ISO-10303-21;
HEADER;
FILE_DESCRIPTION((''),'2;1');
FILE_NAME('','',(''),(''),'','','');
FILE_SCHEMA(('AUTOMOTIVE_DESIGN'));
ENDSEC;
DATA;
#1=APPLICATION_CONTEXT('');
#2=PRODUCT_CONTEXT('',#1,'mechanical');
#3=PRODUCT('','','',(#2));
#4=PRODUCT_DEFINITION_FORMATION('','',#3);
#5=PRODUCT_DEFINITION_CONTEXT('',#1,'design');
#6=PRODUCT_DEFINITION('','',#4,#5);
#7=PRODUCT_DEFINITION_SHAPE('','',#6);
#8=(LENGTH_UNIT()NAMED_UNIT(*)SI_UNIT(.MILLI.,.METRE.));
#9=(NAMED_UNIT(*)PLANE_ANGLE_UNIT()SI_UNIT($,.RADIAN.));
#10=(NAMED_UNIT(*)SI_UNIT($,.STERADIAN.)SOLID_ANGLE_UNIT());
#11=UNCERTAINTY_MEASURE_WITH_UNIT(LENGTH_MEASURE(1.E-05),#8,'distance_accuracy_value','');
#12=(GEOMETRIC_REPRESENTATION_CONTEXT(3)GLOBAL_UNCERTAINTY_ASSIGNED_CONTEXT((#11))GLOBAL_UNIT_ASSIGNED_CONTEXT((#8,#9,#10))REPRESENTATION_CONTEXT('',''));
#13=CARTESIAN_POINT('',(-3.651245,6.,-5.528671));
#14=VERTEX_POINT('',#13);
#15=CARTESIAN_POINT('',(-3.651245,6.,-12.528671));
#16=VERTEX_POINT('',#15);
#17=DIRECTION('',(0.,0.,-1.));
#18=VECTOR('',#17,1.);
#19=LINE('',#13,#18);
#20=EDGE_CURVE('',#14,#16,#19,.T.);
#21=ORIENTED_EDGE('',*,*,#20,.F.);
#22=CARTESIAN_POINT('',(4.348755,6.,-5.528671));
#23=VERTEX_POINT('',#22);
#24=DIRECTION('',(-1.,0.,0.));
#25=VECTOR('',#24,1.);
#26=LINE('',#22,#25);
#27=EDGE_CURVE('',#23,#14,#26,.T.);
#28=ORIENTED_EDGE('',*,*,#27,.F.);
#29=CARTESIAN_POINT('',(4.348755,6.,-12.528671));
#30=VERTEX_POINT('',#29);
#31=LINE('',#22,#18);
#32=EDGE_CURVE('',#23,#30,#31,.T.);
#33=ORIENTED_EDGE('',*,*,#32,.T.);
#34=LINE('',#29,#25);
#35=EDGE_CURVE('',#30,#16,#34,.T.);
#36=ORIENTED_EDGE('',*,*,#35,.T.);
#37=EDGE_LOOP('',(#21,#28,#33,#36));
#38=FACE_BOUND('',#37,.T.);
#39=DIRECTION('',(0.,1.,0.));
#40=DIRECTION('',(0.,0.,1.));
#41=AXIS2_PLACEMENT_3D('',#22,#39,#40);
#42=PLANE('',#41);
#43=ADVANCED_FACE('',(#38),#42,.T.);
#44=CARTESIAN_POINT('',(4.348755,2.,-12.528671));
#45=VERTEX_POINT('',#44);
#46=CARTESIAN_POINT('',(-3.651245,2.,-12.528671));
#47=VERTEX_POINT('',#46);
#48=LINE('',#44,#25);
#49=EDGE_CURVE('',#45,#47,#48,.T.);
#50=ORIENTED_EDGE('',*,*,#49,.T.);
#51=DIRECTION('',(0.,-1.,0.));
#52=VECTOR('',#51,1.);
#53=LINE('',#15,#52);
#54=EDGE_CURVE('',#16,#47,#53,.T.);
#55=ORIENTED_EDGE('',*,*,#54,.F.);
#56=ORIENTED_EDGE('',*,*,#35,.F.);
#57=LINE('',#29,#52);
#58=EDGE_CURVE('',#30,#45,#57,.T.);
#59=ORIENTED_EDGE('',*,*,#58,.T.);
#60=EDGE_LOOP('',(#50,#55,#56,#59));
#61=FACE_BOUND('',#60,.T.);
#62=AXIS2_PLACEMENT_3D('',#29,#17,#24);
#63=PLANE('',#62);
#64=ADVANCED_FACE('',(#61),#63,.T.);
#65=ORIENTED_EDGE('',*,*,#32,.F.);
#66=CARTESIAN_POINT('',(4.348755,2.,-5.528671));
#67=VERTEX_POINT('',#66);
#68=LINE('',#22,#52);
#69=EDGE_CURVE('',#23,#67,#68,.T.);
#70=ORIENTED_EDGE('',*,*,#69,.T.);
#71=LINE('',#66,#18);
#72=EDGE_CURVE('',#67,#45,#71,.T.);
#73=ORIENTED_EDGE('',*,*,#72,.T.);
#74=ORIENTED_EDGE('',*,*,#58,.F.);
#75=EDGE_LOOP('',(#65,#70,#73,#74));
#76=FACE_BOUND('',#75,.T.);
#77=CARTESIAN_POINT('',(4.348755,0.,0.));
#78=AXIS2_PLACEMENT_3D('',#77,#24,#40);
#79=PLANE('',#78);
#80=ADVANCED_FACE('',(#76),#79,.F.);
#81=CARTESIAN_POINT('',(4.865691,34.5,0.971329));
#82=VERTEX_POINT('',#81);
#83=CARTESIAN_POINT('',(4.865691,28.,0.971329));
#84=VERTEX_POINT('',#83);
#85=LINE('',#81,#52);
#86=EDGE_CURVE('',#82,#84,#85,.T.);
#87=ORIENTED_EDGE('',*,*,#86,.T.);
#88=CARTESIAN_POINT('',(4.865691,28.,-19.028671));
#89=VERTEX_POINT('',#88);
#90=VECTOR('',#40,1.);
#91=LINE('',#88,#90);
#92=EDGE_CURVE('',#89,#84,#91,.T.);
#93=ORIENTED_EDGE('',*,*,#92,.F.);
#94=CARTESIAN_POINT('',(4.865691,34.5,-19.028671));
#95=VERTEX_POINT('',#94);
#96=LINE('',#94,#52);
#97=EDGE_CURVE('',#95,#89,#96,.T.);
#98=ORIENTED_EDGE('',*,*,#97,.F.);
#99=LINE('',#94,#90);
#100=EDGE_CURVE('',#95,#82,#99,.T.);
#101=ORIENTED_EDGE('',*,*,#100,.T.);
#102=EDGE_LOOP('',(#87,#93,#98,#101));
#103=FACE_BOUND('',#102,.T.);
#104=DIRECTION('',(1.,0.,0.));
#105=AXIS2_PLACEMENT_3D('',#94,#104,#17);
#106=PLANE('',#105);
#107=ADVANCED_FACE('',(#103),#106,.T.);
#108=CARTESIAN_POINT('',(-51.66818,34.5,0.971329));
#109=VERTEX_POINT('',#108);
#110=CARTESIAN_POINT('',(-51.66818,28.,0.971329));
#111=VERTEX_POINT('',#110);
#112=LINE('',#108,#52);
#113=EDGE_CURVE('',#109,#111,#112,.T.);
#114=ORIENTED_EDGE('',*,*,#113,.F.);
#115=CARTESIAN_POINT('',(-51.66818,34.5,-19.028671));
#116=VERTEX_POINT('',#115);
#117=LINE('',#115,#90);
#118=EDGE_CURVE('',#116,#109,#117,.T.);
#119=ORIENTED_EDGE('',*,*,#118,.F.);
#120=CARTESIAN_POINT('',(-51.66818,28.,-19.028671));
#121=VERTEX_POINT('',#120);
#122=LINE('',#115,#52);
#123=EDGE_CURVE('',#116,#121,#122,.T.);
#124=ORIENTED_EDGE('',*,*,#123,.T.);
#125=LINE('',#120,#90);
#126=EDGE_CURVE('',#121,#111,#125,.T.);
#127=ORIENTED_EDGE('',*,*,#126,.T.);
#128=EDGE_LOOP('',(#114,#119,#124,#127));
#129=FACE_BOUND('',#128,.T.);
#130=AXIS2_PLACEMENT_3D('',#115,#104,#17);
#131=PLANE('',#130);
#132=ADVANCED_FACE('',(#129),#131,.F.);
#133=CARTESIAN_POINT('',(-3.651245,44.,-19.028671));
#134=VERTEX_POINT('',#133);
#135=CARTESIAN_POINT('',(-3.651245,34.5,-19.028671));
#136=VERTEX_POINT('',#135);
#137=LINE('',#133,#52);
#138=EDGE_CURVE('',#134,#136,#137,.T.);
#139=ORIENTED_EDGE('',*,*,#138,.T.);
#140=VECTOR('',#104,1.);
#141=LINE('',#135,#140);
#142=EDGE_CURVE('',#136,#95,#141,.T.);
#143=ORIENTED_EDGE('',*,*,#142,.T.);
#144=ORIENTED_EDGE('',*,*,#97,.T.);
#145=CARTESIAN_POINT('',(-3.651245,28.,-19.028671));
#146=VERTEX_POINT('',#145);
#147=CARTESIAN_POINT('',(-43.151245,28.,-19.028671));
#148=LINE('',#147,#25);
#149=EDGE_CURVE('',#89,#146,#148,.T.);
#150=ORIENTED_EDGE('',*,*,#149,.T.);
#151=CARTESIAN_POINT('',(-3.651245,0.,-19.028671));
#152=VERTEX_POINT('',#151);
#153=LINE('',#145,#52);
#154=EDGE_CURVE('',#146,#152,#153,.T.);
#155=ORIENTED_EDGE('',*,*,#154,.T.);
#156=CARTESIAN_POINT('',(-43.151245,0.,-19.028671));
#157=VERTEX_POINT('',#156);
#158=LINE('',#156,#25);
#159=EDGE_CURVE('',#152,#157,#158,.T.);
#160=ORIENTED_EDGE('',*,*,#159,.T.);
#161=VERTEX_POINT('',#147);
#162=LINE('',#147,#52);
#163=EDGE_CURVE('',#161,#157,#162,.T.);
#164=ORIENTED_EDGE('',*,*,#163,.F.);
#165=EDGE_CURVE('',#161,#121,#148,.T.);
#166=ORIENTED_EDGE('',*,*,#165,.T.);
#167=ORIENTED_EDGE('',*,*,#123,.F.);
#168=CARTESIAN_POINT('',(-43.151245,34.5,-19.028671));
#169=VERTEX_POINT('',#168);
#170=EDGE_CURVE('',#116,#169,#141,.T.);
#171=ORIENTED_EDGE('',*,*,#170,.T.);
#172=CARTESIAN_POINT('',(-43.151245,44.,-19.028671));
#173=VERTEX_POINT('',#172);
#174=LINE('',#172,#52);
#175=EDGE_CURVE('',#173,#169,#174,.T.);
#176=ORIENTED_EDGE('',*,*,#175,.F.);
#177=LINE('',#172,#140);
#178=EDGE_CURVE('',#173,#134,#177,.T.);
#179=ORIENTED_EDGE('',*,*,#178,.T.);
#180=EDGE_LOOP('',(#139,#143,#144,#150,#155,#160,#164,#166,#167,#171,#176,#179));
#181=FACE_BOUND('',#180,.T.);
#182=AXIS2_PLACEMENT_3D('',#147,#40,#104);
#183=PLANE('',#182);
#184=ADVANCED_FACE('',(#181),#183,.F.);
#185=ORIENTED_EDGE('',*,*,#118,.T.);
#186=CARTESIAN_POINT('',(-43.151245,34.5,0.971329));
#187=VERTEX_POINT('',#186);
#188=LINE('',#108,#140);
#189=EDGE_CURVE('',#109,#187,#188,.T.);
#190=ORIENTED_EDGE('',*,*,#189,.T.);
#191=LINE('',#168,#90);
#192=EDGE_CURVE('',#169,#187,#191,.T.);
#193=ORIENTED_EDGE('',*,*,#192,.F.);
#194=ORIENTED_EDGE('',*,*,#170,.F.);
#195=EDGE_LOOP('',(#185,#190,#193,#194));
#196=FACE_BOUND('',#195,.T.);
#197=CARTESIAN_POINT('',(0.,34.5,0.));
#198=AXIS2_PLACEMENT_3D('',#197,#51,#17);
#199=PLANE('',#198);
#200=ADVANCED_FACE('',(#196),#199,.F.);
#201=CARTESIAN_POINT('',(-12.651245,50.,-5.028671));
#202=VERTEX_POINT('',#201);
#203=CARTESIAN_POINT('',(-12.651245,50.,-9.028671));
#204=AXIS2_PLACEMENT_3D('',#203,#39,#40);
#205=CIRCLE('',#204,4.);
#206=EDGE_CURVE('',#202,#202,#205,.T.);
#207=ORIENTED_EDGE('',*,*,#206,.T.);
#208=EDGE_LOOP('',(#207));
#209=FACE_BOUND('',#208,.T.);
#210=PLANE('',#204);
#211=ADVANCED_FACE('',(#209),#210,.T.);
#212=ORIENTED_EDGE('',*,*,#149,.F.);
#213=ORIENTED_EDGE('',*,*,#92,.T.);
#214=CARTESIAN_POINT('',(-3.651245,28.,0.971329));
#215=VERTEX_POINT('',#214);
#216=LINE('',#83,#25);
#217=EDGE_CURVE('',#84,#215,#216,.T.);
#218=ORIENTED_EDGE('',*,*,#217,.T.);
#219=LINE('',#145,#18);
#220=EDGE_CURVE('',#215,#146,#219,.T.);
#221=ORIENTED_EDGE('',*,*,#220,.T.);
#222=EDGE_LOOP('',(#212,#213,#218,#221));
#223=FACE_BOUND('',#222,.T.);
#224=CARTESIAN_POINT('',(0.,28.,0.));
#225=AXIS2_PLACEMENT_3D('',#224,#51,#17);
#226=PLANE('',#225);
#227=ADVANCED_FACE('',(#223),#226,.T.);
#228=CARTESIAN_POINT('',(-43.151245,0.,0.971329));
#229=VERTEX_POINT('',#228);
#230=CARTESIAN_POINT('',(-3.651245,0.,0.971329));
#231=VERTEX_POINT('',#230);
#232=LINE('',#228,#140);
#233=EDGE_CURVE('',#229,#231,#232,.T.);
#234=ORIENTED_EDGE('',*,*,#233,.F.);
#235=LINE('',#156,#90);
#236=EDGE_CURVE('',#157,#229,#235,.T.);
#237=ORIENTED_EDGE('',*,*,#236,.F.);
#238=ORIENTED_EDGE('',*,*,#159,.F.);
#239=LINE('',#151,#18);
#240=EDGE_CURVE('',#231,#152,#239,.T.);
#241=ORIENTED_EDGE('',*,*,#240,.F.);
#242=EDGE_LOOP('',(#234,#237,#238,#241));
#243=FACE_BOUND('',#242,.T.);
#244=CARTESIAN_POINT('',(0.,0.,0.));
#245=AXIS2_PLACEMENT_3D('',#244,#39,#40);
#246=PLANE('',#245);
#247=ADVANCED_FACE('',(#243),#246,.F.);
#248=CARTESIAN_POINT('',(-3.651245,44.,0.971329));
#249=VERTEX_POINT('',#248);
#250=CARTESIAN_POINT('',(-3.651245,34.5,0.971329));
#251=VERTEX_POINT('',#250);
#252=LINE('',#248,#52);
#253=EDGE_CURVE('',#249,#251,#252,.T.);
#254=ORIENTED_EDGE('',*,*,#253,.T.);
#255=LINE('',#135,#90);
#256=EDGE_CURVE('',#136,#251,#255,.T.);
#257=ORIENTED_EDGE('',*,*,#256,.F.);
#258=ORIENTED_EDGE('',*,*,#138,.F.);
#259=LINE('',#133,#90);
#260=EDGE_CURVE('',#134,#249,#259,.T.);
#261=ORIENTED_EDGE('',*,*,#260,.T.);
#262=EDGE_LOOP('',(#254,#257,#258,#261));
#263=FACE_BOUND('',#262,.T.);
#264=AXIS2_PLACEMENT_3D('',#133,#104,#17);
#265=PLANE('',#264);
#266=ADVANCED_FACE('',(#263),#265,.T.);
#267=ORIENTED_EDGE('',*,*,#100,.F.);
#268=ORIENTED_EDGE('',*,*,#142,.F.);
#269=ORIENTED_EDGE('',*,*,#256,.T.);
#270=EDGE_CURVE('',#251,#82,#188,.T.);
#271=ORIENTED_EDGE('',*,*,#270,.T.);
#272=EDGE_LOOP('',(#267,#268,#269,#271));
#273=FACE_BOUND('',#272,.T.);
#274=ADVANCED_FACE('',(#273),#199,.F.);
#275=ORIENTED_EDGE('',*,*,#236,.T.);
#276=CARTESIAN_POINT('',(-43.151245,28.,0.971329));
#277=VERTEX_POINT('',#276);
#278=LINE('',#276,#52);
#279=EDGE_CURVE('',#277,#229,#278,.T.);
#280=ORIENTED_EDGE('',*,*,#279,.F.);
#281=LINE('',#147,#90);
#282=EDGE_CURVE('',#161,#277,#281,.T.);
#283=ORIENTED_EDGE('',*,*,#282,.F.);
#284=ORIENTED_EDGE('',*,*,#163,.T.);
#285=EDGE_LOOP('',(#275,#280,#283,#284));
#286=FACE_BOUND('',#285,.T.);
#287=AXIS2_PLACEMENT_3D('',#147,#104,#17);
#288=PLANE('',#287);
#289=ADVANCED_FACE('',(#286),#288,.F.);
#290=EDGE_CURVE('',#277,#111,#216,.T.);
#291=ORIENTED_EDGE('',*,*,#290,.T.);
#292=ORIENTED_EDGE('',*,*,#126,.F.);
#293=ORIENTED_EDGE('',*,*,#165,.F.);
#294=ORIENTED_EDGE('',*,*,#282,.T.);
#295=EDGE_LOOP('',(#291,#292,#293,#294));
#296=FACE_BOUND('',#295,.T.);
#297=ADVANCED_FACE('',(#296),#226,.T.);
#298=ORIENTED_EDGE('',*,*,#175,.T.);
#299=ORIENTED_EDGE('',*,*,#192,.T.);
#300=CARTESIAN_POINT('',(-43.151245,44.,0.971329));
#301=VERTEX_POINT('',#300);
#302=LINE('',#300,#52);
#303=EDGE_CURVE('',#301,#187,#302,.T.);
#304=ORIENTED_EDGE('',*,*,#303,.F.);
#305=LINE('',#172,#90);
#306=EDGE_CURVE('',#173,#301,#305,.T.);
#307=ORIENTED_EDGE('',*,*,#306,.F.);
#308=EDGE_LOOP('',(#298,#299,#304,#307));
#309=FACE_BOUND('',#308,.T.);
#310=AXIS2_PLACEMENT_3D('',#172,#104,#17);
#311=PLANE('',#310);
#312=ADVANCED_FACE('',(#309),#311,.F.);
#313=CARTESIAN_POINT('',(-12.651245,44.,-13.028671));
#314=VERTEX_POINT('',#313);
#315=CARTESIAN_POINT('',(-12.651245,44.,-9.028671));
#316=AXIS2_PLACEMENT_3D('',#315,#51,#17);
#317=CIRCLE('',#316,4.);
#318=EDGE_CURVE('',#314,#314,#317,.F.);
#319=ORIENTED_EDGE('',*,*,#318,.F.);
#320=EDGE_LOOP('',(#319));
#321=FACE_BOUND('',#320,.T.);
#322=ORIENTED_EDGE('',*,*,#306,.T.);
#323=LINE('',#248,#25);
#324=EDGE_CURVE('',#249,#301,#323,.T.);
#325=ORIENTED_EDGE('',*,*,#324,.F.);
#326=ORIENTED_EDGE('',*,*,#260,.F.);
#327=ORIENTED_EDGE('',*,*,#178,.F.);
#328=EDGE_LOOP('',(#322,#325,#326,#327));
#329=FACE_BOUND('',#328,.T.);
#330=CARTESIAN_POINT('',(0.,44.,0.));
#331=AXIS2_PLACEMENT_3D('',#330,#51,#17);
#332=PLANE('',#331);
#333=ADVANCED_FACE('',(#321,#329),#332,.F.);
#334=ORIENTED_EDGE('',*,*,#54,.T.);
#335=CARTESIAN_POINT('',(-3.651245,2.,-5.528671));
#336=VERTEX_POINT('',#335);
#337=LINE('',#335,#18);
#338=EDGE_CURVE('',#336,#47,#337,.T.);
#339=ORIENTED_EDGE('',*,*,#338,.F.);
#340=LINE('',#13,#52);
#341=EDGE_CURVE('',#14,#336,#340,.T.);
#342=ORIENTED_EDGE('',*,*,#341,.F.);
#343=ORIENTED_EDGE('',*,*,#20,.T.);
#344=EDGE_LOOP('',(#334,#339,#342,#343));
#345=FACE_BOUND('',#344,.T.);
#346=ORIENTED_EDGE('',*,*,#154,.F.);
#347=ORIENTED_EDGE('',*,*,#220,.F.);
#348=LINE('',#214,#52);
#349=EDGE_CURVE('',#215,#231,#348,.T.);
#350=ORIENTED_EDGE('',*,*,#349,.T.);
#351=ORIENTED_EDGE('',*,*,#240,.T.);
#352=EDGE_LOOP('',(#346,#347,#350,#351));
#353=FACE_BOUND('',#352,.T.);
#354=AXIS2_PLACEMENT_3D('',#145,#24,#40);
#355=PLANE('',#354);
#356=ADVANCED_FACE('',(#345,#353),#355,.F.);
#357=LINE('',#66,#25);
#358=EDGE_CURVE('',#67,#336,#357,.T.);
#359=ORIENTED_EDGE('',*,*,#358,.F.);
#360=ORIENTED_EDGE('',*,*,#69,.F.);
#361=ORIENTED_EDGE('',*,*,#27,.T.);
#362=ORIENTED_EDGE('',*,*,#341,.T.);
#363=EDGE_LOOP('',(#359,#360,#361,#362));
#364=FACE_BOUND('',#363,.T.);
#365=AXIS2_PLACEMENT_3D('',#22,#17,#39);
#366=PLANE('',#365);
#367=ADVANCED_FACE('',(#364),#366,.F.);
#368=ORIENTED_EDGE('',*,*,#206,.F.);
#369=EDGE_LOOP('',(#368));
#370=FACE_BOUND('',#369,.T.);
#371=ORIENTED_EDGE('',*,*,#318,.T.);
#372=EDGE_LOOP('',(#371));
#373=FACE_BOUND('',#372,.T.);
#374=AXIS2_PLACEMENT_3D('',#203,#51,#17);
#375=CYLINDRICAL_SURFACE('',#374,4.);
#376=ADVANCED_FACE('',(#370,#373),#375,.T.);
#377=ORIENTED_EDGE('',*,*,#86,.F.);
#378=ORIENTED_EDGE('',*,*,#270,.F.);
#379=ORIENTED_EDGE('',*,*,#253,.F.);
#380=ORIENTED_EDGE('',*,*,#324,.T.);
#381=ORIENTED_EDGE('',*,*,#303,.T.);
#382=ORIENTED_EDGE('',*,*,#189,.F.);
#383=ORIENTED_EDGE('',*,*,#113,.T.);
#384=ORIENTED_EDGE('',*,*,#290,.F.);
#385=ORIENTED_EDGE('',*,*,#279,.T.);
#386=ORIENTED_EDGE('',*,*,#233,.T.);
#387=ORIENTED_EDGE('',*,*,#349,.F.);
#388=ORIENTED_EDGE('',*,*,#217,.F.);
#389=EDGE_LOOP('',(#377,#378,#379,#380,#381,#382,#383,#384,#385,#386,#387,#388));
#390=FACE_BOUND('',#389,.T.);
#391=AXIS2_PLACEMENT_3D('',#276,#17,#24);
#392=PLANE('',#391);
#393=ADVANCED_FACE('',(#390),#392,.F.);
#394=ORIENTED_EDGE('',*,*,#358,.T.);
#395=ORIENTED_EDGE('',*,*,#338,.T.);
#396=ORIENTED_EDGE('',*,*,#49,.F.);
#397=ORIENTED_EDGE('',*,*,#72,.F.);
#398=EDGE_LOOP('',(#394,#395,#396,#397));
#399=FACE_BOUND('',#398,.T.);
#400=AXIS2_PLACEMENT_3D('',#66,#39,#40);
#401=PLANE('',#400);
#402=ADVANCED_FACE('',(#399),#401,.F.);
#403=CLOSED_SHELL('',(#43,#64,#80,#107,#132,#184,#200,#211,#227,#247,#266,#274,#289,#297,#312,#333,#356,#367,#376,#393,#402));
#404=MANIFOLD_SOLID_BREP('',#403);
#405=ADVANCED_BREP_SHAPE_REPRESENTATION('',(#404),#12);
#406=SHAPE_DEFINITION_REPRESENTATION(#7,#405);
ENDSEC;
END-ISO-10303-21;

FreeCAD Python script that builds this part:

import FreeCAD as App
import Part
import Sketcher

V = App.Vector

doc = App.newDocument("Part")
body = doc.addObject("PartDesign::Body", "Body")

sketch1 = doc.addObject("Sketcher::SketchObject", "Sketch")
body.addObject(sketch1)
sketch1.AttachmentSupport = (doc.XZ_Plane, [""])
sketch1.MapMode = "FlatFace"
sketch1.addGeometry([
    Part.LineSegment(V(-43, -19, 0), V(-43, 1, 0)),
    Part.LineSegment(V(-43, 1, 0), V(-4, 1, 0)),
    Part.LineSegment(V(-4, 1, 0), V(-4, -19, 0)),
    Part.LineSegment(V(-4, -19, 0), V(-43, -19, 0)),
], False)
sketch1.addConstraint([
    Sketcher.Constraint("Coincident", 0, 2, 1, 1),
    Sketcher.Constraint("Coincident", 1, 2, 2, 1),
    Sketcher.Constraint("Coincident", 2, 2, 3, 1),
    Sketcher.Constraint("Coincident", 3, 2, 0, 1),
    Sketcher.Constraint("Vertical", 0),
    Sketcher.Constraint("Horizontal", 1),
    Sketcher.Constraint("Vertical", 2),
    Sketcher.Constraint("Horizontal", 3),
    Sketcher.Constraint("DistanceY", 0, 1, 0, 2, 20.0),
    Sketcher.Constraint("DistanceX", 1, 1, 1, 2, 39.5),
    Sketcher.Constraint("DistanceY", -1, 1, 0, 2, 0.971329),
    Sketcher.Constraint("DistanceX", 0, 2, -1, 1, 43.151245),
])
pad1 = doc.addObject("PartDesign::Pad", "Pad")
body.addObject(pad1)
pad1.Profile = sketch1
pad1.Length = 28
pad1.Reversed = True

sketch2 = doc.addObject("Sketcher::SketchObject", "Sketch001")
body.addObject(sketch2)
sketch2.AttachmentSupport = (doc.XZ_Plane, [""])
sketch2.MapMode = "FlatFace"
sketch2.AttachmentOffset = App.Placement(V(0, 0, -28), App.Rotation())
sketch2.addGeometry([
    Part.LineSegment(V(-52, -19, 0), V(-52, 1, 0)),
    Part.LineSegment(V(-52, 1, 0), V(5, 1, 0)),
    Part.LineSegment(V(5, 1, 0), V(5, -19, 0)),
    Part.LineSegment(V(5, -19, 0), V(-52, -19, 0)),
], False)
sketch2.addConstraint([
    Sketcher.Constraint("Coincident", 0, 2, 1, 1),
    Sketcher.Constraint("Coincident", 1, 2, 2, 1),
    Sketcher.Constraint("Coincident", 2, 2, 3, 1),
    Sketcher.Constraint("Coincident", 3, 2, 0, 1),
    Sketcher.Constraint("Vertical", 0),
    Sketcher.Constraint("Horizontal", 1),
    Sketcher.Constraint("Vertical", 2),
    Sketcher.Constraint("Horizontal", 3),
    Sketcher.Constraint("DistanceY", 0, 1, 0, 2, 20.0),
    Sketcher.Constraint("DistanceX", 1, 1, 1, 2, 56.533871),
    Sketcher.Constraint("DistanceX", 0, 2, -1, 1, 51.66818),
    Sketcher.Constraint("DistanceY", -1, 1, 0, 2, 0.971329),
])
pad2 = doc.addObject("PartDesign::Pad", "Pad001")
body.addObject(pad2)
pad2.Profile = sketch2
pad2.Length = 6.5
pad2.Reversed = True

sketch3 = doc.addObject("Sketcher::SketchObject", "Sketch002")
body.addObject(sketch3)
sketch3.AttachmentSupport = (doc.XZ_Plane, [""])
sketch3.MapMode = "FlatFace"
sketch3.AttachmentOffset = App.Placement(V(0, 0, -34.5), App.Rotation())
sketch3.addGeometry([
    Part.LineSegment(V(-43, -19, 0), V(-43, 1, 0)),
    Part.LineSegment(V(-43, 1, 0), V(-4, 1, 0)),
    Part.LineSegment(V(-4, 1, 0), V(-4, -19, 0)),
    Part.LineSegment(V(-4, -19, 0), V(-43, -19, 0)),
], False)
sketch3.addConstraint([
    Sketcher.Constraint("Coincident", 0, 2, 1, 1),
    Sketcher.Constraint("Coincident", 1, 2, 2, 1),
    Sketcher.Constraint("Coincident", 2, 2, 3, 1),
    Sketcher.Constraint("Coincident", 3, 2, 0, 1),
    Sketcher.Constraint("Vertical", 0),
    Sketcher.Constraint("Horizontal", 1),
    Sketcher.Constraint("Vertical", 2),
    Sketcher.Constraint("Horizontal", 3),
    Sketcher.Constraint("DistanceY", 0, 1, 0, 2, 20.0),
    Sketcher.Constraint("DistanceX", 1, 1, 1, 2, 39.5),
    Sketcher.Constraint("DistanceY", -1, 1, 0, 2, 0.971329),
    Sketcher.Constraint("DistanceX", 0, 2, -1, 1, 43.151245),
])
pad3 = doc.addObject("PartDesign::Pad", "Pad002")
body.addObject(pad3)
pad3.Profile = sketch3
pad3.Length = 9.5
pad3.Reversed = True

sketch4 = doc.addObject("Sketcher::SketchObject", "Sketch003")
body.addObject(sketch4)
sketch4.AttachmentSupport = (doc.XZ_Plane, [""])
sketch4.MapMode = "FlatFace"
sketch4.AttachmentOffset = App.Placement(V(0, 0, -44), App.Rotation())
sketch4.addGeometry(Part.Circle(V(-12.7, -9, 0), V(0, 0, 1), 4), False)
sketch4.addConstraint([
    Sketcher.Constraint("Diameter", 0, 8.0),
    Sketcher.Constraint("DistanceY", 0, 3, -1, 1, 9.028671),
    Sketcher.Constraint("DistanceX", 0, 3, -1, 1, 12.651245),
])
pad4 = doc.addObject("PartDesign::Pad", "Pad003")
body.addObject(pad4)
pad4.Profile = sketch4
pad4.Length = 6
pad4.Reversed = True

sketch5 = doc.addObject("Sketcher::SketchObject", "Sketch004")
body.addObject(sketch5)
sketch5.AttachmentSupport = (doc.YZ_Plane, [""])
sketch5.MapMode = "FlatFace"
sketch5.AttachmentOffset = App.Placement(V(0, 0, -3.651245), App.Rotation())
sketch5.addGeometry([
    Part.LineSegment(V(6, -5.5, 0), V(2, -5.5, 0)),
    Part.LineSegment(V(2, -5.5, 0), V(2, -12.5, 0)),
    Part.LineSegment(V(2, -12.5, 0), V(6, -12.5, 0)),
    Part.LineSegment(V(6, -12.5, 0), V(6, -5.5, 0)),
], False)
sketch5.addConstraint([
    Sketcher.Constraint("Coincident", 0, 2, 1, 1),
    Sketcher.Constraint("Coincident", 1, 2, 2, 1),
    Sketcher.Constraint("Coincident", 2, 2, 3, 1),
    Sketcher.Constraint("Coincident", 3, 2, 0, 1),
    Sketcher.Constraint("Horizontal", 0),
    Sketcher.Constraint("Vertical", 1),
    Sketcher.Constraint("Horizontal", 2),
    Sketcher.Constraint("Vertical", 3),
    Sketcher.Constraint("DistanceX", 0, 2, 0, 1, 4.0),
    Sketcher.Constraint("DistanceY", 1, 2, 1, 1, 7.0),
    Sketcher.Constraint("DistanceX", -1, 1, 0, 2, 2.0),
    Sketcher.Constraint("DistanceY", 0, 2, -1, 1, 5.528671),
])
pad5 = doc.addObject("PartDesign::Pad", "Pad004")
body.addObject(pad5)
pad5.Profile = sketch5
pad5.Length = 8

doc.recompute()
